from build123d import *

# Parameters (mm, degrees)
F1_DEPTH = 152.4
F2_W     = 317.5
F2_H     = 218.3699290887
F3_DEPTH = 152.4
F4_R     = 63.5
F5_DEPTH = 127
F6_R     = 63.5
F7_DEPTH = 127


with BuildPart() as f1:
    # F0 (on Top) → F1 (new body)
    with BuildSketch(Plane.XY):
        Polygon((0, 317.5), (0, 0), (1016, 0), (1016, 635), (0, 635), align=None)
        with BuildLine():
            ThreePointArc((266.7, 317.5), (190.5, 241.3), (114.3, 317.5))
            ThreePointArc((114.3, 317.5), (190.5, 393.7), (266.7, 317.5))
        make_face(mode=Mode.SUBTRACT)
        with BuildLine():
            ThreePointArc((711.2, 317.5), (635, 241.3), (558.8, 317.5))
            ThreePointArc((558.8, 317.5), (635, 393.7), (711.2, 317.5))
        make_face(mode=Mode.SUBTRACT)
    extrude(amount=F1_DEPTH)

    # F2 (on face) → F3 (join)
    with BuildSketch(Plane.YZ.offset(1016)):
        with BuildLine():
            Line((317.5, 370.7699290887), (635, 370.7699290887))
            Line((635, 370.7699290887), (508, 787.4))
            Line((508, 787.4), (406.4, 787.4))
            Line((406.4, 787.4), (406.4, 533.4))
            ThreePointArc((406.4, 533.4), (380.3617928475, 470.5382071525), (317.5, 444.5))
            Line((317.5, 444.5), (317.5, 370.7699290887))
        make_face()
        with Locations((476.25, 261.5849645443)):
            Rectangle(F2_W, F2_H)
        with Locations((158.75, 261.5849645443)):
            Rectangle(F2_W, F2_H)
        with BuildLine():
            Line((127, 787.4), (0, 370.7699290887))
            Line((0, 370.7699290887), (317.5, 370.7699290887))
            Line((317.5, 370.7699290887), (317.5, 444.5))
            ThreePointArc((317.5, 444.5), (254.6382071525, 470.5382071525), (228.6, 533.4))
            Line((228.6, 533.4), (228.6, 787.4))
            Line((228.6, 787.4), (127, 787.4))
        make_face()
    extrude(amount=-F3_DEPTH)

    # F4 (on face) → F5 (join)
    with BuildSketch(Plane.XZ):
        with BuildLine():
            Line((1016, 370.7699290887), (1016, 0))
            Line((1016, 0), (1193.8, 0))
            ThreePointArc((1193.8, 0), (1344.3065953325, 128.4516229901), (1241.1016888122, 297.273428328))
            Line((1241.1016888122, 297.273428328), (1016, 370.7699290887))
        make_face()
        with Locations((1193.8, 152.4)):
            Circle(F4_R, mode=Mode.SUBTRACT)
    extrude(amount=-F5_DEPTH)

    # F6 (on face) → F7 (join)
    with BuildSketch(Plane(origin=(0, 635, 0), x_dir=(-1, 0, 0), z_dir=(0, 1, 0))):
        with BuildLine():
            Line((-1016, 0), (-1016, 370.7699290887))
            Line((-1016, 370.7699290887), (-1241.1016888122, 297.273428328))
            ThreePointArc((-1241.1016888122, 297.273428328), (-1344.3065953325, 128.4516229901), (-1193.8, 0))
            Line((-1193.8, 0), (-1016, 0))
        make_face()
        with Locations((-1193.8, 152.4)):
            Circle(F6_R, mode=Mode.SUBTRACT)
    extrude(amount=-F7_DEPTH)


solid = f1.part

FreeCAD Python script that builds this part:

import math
import FreeCAD as App
import Part
import Sketcher

V = App.Vector
Q = App.Units.Quantity


def add_polygon(sketch, points):
    """Adds a closed chain of lines whose ends are joined by coincident constraints."""
    first, n = sketch.GeometryCount, len(points)
    for a, b in zip(points, points[1:] + points[:1]):
        sketch.addGeometry(Part.LineSegment(App.Vector(*a, 0), App.Vector(*b, 0)), False)
    for i in range(n):
        sketch.addConstraint(Sketcher.Constraint("Coincident", first + i, 2, first + (i + 1) % n, 1))

doc = App.newDocument("Part")
body = doc.addObject("PartDesign::Body", "Body")

sketch1 = doc.addObject("Sketcher::SketchObject", "Sketch")
body.addObject(sketch1)
sketch1.AttachmentSupport = (doc.XY_Plane, [""])
sketch1.MapMode = "FlatFace"
add_polygon(sketch1, [(0, 0), (1016, 0), (1016, 635), (0, 635)])
sketch1.addGeometry(Part.Circle(V(190.5, 317.5, 0), V(0, 0, 1), 76.2), False)
sketch1.addGeometry(Part.Circle(V(635, 317.5, 0), V(0, 0, 1), 76.2), False)
sketch1.addConstraint([
    Sketcher.Constraint("Horizontal", 0),
    Sketcher.Constraint("Vertical", 1),
    Sketcher.Constraint("Horizontal", 2),
    Sketcher.Constraint("Vertical", 3),
    Sketcher.Constraint("Coincident", 3, 2, -1, 1),
    Sketcher.Constraint("Equal", 4, 5),
    Sketcher.Constraint("Horizontal", 4, 3, 5, 3),
    Sketcher.Constraint("Diameter", 4, Q("6 in")),
    Sketcher.Constraint("DistanceX", 0, 1, 0, 2, Q("40 in")),
    Sketcher.Constraint("DistanceY", 1, 1, 1, 2, Q("25 in")),
    Sketcher.Constraint("DistanceX", -1, 1, 5, 3, Q("25 in")),
    Sketcher.Constraint("DistanceX", -1, 1, 4, 3, Q("7.5 in")),
    Sketcher.Constraint("DistanceY", -1, 1, 4, 3, Q("12.5 in")),
])
pad1 = doc.addObject("PartDesign::Pad", "Pad")
body.addObject(pad1)
pad1.Profile = sketch1
pad1.Length = Q("6 in")

sketch2 = doc.addObject("Sketcher::SketchObject", "Sketch001")
body.addObject(sketch2)
sketch2.AttachmentSupport = (doc.YZ_Plane, [""])
sketch2.MapMode = "FlatFace"
sketch2.AttachmentOffset = App.Placement(V(0, 0, 40 * 25.4), App.Rotation())
sketch2.addGeometry([
    Part.LineSegment(V(635, 370.769929, 0), V(508, 787.4, 0)),
    Part.LineSegment(V(508, 787.4, 0), V(406.4, 787.4, 0)),
    Part.LineSegment(V(406.4, 787.4, 0), V(406.4, 533.4, 0)),
    Part.ArcOfCircle(Part.Circle(V(317.5, 533.4, 0), V(0, 0, 1), 88.9), math.radians(-90), math.radians(0)),
    Part.ArcOfCircle(Part.Circle(V(317.5, 533.4, 0), V(0, 0, 1), 88.9), math.radians(180), math.radians(270)),
    Part.LineSegment(V(228.6, 533.4, 0), V(228.6, 787.4, 0)),
    Part.LineSegment(V(228.6, 787.4, 0), V(127, 787.4, 0)),
    Part.LineSegment(V(127, 787.4, 0), V(0, 370.769929, 0)),
    Part.LineSegment(V(0, 370.769929, 0), V(0, 152.4, 0)),
    Part.LineSegment(V(0, 152.4, 0), V(635, 152.4, 0)),
    Part.LineSegment(V(635, 152.4, 0), V(635, 370.769929, 0)),
], False)
sketch2.addConstraint([
    Sketcher.Constraint("Coincident", 0, 2, 1, 1),
    Sketcher.Constraint("Coincident", 1, 2, 2, 1),
    Sketcher.Constraint("Tangent", 2, 2, 3, 2),
    Sketcher.Constraint("Tangent", 3, 1, 4, 2),
    Sketcher.Constraint("Tangent", 4, 1, 5, 1),
    Sketcher.Constraint("Coincident", 5, 2, 6, 1),
    Sketcher.Constraint("Coincident", 6, 2, 7, 1),
    Sketcher.Constraint("Coincident", 7, 2, 8, 1),
    Sketcher.Constraint("Coincident", 8, 2, 9, 1),
    Sketcher.Constraint("Coincident", 9, 2, 10, 1),
    Sketcher.Constraint("Coincident", 10, 2, 0, 1),
    Sketcher.Constraint("Horizontal", 1),
    Sketcher.Constraint("Vertical", 2),
    Sketcher.Constraint("Vertical", 5),
    Sketcher.Constraint("Horizontal", 6),
    Sketcher.Constraint("Vertical", 8),
    Sketcher.Constraint("Horizontal", 9),
    Sketcher.Constraint("Vertical", 10),
    Sketcher.Constraint("Equal", 3, 4),
    Sketcher.Constraint("PointOnObject", 7, 2, -2),
    Sketcher.Constraint("Horizontal", 1, 2, 5, 2),
    Sketcher.Constraint("Horizontal", 7, 2, 10, 2),
    Sketcher.Constraint("Vertical", 4, 3, 3, 1),
    Sketcher.Constraint("Equal", 1, 6),
    Sketcher.Constraint("Equal", 0, 7),
    Sketcher.Constraint("Radius", 3, Q("3.5 in")),
    Sketcher.Constraint("DistanceX", 1, 2, 1, 1, Q("4 in")),
    Sketcher.Constraint("DistanceX", 9, 1, 9, 2, Q("25 in")),
    Sketcher.Constraint("DistanceY", 2, 2, 2, 1, Q("10 in")),
    Sketcher.Constraint("DistanceY", -1, 1, 3, 3, Q("21 in")),
    Sketcher.Constraint("DistanceY", -1, 1, 8, 2, Q("6 in")),
    Sketcher.Constraint("DistanceY", 8, 2, 8, 1, 218.369929),
])
pad2 = doc.addObject("PartDesign::Pad", "Pad001")
body.addObject(pad2)
pad2.Profile = sketch2
pad2.Length = Q("6 in")
pad2.Reversed = True

sketch3 = doc.addObject("Sketcher::SketchObject", "Sketch002")
body.addObject(sketch3)
sketch3.AttachmentSupport = (doc.XZ_Plane, [""])
sketch3.MapMode = "FlatFace"
sketch3.addGeometry([
    Part.LineSegment(V(1016, 370.769929, 0), V(1016, 0, 0)),
    Part.LineSegment(V(1016, 0, 0), V(1193.8, 0, 0)),
    Part.ArcOfCircle(Part.Circle(V(1193.8, 152.4, 0), V(0, 0, 1), 152.4), math.radians(-90), math.radians(71.917956)),
    Part.LineSegment(V(1241.101689, 297.273428, 0), V(1016, 370.769929, 0)),
    Part.Circle(V(1193.8, 152.4, 0), V(0, 0, 1), 63.5),
], False)
sketch3.addConstraint([
    Sketcher.Constraint("Coincident", 0, 2, 1, 1),
    Sketcher.Constraint("Tangent", 1, 2, 2, 1),
    Sketcher.Constraint("Tangent", 2, 2, 3, 1),
    Sketcher.Constraint("Coincident", 3, 2, 0, 1),
    Sketcher.Constraint("Vertical", 0),
    Sketcher.Constraint("Horizontal", 1),
    Sketcher.Constraint("Coincident", 4, 3, 2, 3),
    Sketcher.Constraint("PointOnObject", 0, 2, -1),
    Sketcher.Constraint("Diameter", 4, Q("5 in")),
    Sketcher.Constraint("Radius", 2, Q("6 in")),
    Sketcher.Constraint("DistanceX", 1, 1, 1, 2, Q("7 in")),
    Sketcher.Constraint("DistanceX", -1, 1, 2, 3, Q("47 in")),
    Sketcher.Constraint("DistanceY", 0, 2, 0, 1, 370.769929),
])
pad3 = doc.addObject("PartDesign::Pad", "Pad002")
body.addObject(pad3)
pad3.Profile = sketch3
pad3.Length = Q("5 in")
pad3.Reversed = True

sketch4 = doc.addObject("Sketcher::SketchObject", "Sketch003")
body.addObject(sketch4)
sketch4.AttachmentSupport = (doc.XZ_Plane, [""])
sketch4.MapMode = "FlatFace"
sketch4.AttachmentOffset = App.Placement(V(0, 0, -25 * 25.4), App.Rotation())
sketch4.addGeometry([
    Part.LineSegment(V(1016, 0, 0), V(1016, 370.769929, 0)),
    Part.LineSegment(V(1016, 370.769929, 0), V(1241.101689, 297.273428, 0)),
    Part.ArcOfCircle(Part.Circle(V(1193.8, 152.4, 0), V(0, 0, 1), 152.4), math.radians(-90), math.radians(71.917956)),
    Part.LineSegment(V(1193.8, 0, 0), V(1016, 0, 0)),
    Part.Circle(V(1193.8, 152.4, 0), V(0, 0, 1), 63.5),
], False)
sketch4.addConstraint([
    Sketcher.Constraint("Coincident", 0, 2, 1, 1),
    Sketcher.Constraint("Tangent", 1, 2, 2, 2),
    Sketcher.Constraint("Tangent", 2, 1, 3, 1),
    Sketcher.Constraint("Coincident", 3, 2, 0, 1),
    Sketcher.Constraint("Vertical", 0),
    Sketcher.Constraint("Horizontal", 3),
    Sketcher.Constraint("Coincident", 4, 3, 2, 3),
    Sketcher.Constraint("PointOnObject", 2, 1, -1),
    Sketcher.Constraint("Diameter", 4, Q("5 in")),
    Sketcher.Constraint("Radius", 2, Q("6 in")),
    Sketcher.Constraint("DistanceX", 3, 2, 3, 1, Q("7 in")),
    Sketcher.Constraint("DistanceX", -1, 1, 2, 3, Q("47 in")),
    Sketcher.Constraint("DistanceY", 0, 1, 0, 2, 370.769929),
])
pad4 = doc.addObject("PartDesign::Pad", "Pad003")
body.addObject(pad4)
pad4.Profile = sketch4
pad4.Length = Q("5 in")

doc.recompute()
